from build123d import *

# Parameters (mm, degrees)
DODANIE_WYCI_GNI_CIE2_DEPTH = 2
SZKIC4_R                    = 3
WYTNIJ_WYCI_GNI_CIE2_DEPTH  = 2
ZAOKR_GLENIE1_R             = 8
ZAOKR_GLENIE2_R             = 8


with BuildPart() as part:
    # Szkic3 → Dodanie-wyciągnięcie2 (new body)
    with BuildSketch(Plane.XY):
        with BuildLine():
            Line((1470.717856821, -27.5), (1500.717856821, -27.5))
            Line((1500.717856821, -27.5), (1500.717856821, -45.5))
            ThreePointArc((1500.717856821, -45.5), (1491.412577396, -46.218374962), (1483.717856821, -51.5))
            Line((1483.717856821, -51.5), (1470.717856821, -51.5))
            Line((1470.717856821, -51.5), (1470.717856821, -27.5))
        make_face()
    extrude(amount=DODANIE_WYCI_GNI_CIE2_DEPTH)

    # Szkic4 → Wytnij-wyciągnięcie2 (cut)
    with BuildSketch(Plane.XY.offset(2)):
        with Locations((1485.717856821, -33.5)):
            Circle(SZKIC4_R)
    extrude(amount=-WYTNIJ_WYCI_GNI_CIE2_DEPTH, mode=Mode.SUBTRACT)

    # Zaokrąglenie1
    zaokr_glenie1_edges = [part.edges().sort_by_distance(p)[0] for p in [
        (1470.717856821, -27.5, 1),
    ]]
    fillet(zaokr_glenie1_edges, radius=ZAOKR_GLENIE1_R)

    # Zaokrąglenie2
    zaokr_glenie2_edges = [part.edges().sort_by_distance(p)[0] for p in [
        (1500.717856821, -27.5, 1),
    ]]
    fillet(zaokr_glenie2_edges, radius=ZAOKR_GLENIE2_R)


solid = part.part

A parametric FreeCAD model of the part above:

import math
import FreeCAD as App
import Part
import Sketcher
from FreeCAD import Vector
Q = App.Units.Quantity


def edges_at(feature, points):
    """Names of the edges that pass closest to the given points."""
    edges = feature.Shape.Edges
    near = lambda p: min(range(len(edges)), key=lambda i: edges[i].distToShape(Part.Vertex(*p))[0])
    return sorted({f"Edge{near(p) + 1}" for p in points})

doc = App.newDocument("Part")
params = doc.addObject("Spreadsheet::Sheet", "Params")
for row, (alias, value) in enumerate([
    ("sketch1_radius", "18 mm"),
    ("sketch1_width", "30 mm"),
    ("sketch1_width2", "13 mm"),
    ("sketch1_height", "24 mm"),
    ("sketch1_height2", "18 mm"),
    ("pad1_length", "2 mm"),
    ("sketch2_diameter", "6 mm"),
    ("pocket1_length", "2 mm"),
    ("fillet_radius", "8 mm"),
    ("fillet2_radius", "8 mm"),
], start=1):
    params.set(f"A{row}", alias)
    params.set(f"B{row}", "=" + value)
    params.setAlias(f"B{row}", alias)

body = doc.addObject("PartDesign::Body", "Body")

# Sketch on XY plane
sketch1 = body.newObject("Sketcher::SketchObject", "Sketch")
sketch1.AttachmentSupport = (doc.getObject("XY_Plane"), [""])
sketch1.MapMode = "FlatFace"
sketch1.addGeometry(Part.LineSegment(Vector(1501, -28, 0), Vector(1471, -28, 0)), False)
sketch1.addGeometry(Part.LineSegment(Vector(1471, -28, 0), Vector(1471, -52, 0)), False)
sketch1.addGeometry(Part.LineSegment(Vector(1471, -52, 0), Vector(1484, -52, 0)), False)
sketch1.addGeometry(Part.ArcOfCircle(Part.Circle(Vector(1497, -63, 0), Vector(0, 0, 1), 18), math.radians(79), math.radians(139)), False)
sketch1.addGeometry(Part.LineSegment(Vector(1501, -46, 0), Vector(1501, -28, 0)), False)
sketch1.addConstraint(Sketcher.Constraint("Coincident", 0, 2, 1, 1))
sketch1.addConstraint(Sketcher.Constraint("Coincident", 1, 2, 2, 1))
sketch1.addConstraint(Sketcher.Constraint("Coincident", 2, 2, 3, 2))
sketch1.addConstraint(Sketcher.Constraint("Coincident", 3, 1, 4, 1))
sketch1.addConstraint(Sketcher.Constraint("Coincident", 4, 2, 0, 1))
sketch1.addConstraint(Sketcher.Constraint("Horizontal", 0))
sketch1.addConstraint(Sketcher.Constraint("Vertical", 1))
sketch1.addConstraint(Sketcher.Constraint("Horizontal", 2))
sketch1.addConstraint(Sketcher.Constraint("Vertical", 4))
sketch1.addConstraint(Sketcher.Constraint("Radius", 3, Q("18 mm")))
sketch1.addConstraint(Sketcher.Constraint("DistanceX", 0, 2, 0, 1, Q("30 mm")))
sketch1.addConstraint(Sketcher.Constraint("DistanceX", 2, 1, 2, 2, Q("13 mm")))
sketch1.addConstraint(Sketcher.Constraint("DistanceY", 1, 2, 1, 1, Q("24 mm")))
sketch1.addConstraint(Sketcher.Constraint("DistanceY", 4, 1, 4, 2, Q("18 mm")))
sketch1.addConstraint(Sketcher.Constraint("DistanceY", 0, 2, -1, 1, Q("27.5 mm")))
sketch1.addConstraint(Sketcher.Constraint("DistanceX", -1, 1, 3, 3, Q("1497.40334 mm")))
sketch1.setExpression("Constraints[9]", "Params.sketch1_radius")
sketch1.setExpression("Constraints[10]", "Params.sketch1_width")
sketch1.setExpression("Constraints[11]", "Params.sketch1_width2")
sketch1.setExpression("Constraints[12]", "Params.sketch1_height")
sketch1.setExpression("Constraints[13]", "Params.sketch1_height2")
pad1 = body.newObject("PartDesign::Pad", "Pad")
pad1.Profile = sketch1
pad1.setExpression("Length", "Params.pad1_length")

# Sketch on XY plane
sketch2 = body.newObject("Sketcher::SketchObject", "Sketch001")
sketch2.AttachmentSupport = (doc.getObject("XY_Plane"), [""])
sketch2.MapMode = "FlatFace"
sketch2.AttachmentOffset = App.Placement(Vector(0, 0, 2), App.Rotation())
sketch2.addGeometry(Part.Circle(Vector(1485.7, -33.5, 0), Vector(0, 0, 1), 3), False)
sketch2.addConstraint(Sketcher.Constraint("Diameter", 0, Q("6 mm")))
sketch2.addConstraint(Sketcher.Constraint("DistanceY", 0, 3, -1, 1, Q("33.5 mm")))
sketch2.addConstraint(Sketcher.Constraint("DistanceX", -1, 1, 0, 3, Q("1485.717857 mm")))
sketch2.setExpression("Constraints[0]", "Params.sketch2_diameter")
pocket1 = body.newObject("PartDesign::Pocket", "Pocket")
pocket1.Profile = sketch2
pocket1.setExpression("Length", "Params.pocket1_length")
doc.recompute()

fillet = body.newObject("PartDesign::Fillet", "Fillet")
fillet.Base = (pocket1, edges_at(pocket1, [(1470.718, -27.5, 1)]))
fillet.setExpression("Radius", "Params.fillet_radius")
doc.recompute()

fillet2 = body.newObject("PartDesign::Fillet", "Fillet001")
fillet2.Base = (fillet, edges_at(fillet, [(1500.718, -27.5, 1)]))
fillet2.setExpression("Radius", "Params.fillet2_radius")

doc.recompute()
